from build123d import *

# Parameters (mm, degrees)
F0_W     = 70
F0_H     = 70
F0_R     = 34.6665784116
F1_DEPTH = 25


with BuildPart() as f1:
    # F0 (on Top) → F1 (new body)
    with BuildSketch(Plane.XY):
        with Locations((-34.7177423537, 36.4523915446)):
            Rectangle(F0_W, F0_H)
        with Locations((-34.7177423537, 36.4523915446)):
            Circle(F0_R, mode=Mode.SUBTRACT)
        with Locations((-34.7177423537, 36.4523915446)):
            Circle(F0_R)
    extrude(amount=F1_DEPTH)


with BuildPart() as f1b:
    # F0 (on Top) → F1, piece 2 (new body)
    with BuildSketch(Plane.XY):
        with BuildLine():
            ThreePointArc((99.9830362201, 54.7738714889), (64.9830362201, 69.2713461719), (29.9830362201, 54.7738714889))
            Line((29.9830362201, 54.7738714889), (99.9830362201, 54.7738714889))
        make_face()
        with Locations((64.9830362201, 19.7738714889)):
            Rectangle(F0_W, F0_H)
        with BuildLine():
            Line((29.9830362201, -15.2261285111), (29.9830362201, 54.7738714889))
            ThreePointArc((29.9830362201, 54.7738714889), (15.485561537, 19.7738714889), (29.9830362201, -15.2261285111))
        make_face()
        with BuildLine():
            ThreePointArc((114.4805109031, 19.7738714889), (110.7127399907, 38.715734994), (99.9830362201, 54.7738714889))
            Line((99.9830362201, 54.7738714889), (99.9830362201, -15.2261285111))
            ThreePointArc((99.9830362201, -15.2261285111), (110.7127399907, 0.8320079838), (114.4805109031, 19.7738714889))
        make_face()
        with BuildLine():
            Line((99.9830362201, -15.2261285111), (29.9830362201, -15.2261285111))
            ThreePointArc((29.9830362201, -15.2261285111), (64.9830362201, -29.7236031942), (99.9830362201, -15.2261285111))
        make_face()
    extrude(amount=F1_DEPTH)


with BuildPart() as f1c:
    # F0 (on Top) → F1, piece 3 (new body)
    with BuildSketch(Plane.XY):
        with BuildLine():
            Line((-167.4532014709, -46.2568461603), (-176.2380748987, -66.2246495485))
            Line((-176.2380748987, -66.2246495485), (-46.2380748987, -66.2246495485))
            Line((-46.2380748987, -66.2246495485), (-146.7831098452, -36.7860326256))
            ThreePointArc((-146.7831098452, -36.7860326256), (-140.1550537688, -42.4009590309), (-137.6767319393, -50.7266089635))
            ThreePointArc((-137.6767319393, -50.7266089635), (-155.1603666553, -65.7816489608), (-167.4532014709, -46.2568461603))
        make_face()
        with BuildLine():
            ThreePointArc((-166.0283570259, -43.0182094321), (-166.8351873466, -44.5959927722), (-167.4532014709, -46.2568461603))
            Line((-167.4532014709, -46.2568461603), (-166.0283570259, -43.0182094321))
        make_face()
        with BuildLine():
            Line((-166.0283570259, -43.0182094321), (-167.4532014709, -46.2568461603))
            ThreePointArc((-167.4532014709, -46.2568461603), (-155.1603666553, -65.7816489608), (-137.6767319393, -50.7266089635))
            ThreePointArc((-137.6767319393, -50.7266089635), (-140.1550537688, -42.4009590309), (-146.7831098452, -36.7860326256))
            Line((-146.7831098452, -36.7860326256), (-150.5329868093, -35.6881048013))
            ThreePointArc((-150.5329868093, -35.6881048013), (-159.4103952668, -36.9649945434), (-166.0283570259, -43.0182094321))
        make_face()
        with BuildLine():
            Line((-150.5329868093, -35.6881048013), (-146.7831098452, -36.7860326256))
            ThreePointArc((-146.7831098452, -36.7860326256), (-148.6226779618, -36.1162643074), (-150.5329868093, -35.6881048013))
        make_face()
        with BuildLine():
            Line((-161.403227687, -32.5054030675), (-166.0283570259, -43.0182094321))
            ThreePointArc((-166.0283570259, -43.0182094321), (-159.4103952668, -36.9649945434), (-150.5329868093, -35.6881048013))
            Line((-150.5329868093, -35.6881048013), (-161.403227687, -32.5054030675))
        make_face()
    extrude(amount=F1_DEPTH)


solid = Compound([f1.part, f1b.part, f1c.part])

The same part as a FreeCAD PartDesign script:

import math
import FreeCAD as App
import Part
import Sketcher

V = App.Vector


def add_polygon(sketch, points):
    """Adds a closed chain of lines whose ends are joined by coincident constraints."""
    first, n = sketch.GeometryCount, len(points)
    for a, b in zip(points, points[1:] + points[:1]):
        sketch.addGeometry(Part.LineSegment(App.Vector(*a, 0), App.Vector(*b, 0)), False)
    for i in range(n):
        sketch.addConstraint(Sketcher.Constraint("Coincident", first + i, 2, first + (i + 1) % n, 1))

doc = App.newDocument("Part")
body = doc.addObject("PartDesign::Body", "Body")

# Sketch on XY plane
sketch1 = doc.addObject("Sketcher::SketchObject", "Sketch")
body.addObject(sketch1)
sketch1.AttachmentSupport = (doc.XY_Plane, [""])
sketch1.MapMode = "FlatFace"
add_polygon(sketch1, [(-70, 71), (-70, 1), (0, 1), (0, 71)])  # lines 0-3
sketch1.addConstraint([
    Sketcher.Constraint("Vertical", 0),
    Sketcher.Constraint("Horizontal", 1),
    Sketcher.Constraint("Vertical", 2),
    Sketcher.Constraint("Horizontal", 3),
    Sketcher.Constraint("Equal", 3, 0),
    Sketcher.Constraint("DistanceX", 1, 1, 1, 2, 70.0),
    Sketcher.Constraint("DistanceY", -1, 1, 0, 2, 1.452392),
    Sketcher.Constraint("DistanceX", 0, 2, -1, 1, 69.717742),
])
pad1 = doc.addObject("PartDesign::Pad", "Pad")
body.addObject(pad1)
pad1.Profile = sketch1
pad1.Length = 25
body2 = doc.addObject("PartDesign::Body", "Body001")

# Sketch on XY plane
sketch2 = doc.addObject("Sketcher::SketchObject", "Sketch001")
body2.addObject(sketch2)
sketch2.AttachmentSupport = (doc.getObject("XY_Plane001"), [""])
sketch2.MapMode = "FlatFace"
sketch2.addGeometry([
    Part.ArcOfCircle(Part.Circle(V(65, 20, 0), V(0, 0, 1), 49), math.radians(45), math.radians(315)),
    Part.ArcOfCircle(Part.Circle(V(65, 20, 0), V(0, 0, 1), 49), math.radians(-45), math.radians(0)),
    Part.ArcOfCircle(Part.Circle(V(65, 20, 0), V(0, 0, 1), 49), math.radians(0), math.radians(45)),
], False)
sketch2.addConstraint([
    Sketcher.Constraint("Tangent", 0, 2, 1, 1),
    Sketcher.Constraint("Tangent", 1, 2, 2, 1),
    Sketcher.Constraint("Tangent", 2, 2, 0, 1),
    Sketcher.Constraint("Horizontal", 2, 3, 1, 2),
    Sketcher.Constraint("Vertical", 0, 2, 2, 2),
    Sketcher.Constraint("DistanceX", 0, 3, 0, 2, 35.0),
    Sketcher.Constraint("DistanceY", 0, 2, 0, 3, 35.0),
    Sketcher.Constraint("DistanceY", -1, 1, 0, 3, 19.773871),
    Sketcher.Constraint("DistanceX", -1, 1, 1, 2, 114.480511),
])
pad2 = doc.addObject("PartDesign::Pad", "Pad001")
body2.addObject(pad2)
pad2.Profile = sketch2
pad2.Length = 25
body3 = doc.addObject("PartDesign::Body", "Body002")

# Sketch on XY plane
sketch3 = doc.addObject("Sketcher::SketchObject", "Sketch002")
body3.addObject(sketch3)
sketch3.AttachmentSupport = (doc.getObject("XY_Plane002"), [""])
sketch3.MapMode = "FlatFace"
sketch3.addGeometry([
    Part.LineSegment(V(-167.5, -46.3, 0), V(-176.2, -66.2, 0)),  # 0
    Part.LineSegment(V(-176.2, -66.2, 0), V(-46.2, -66.2, 0)),  # 1
    Part.LineSegment(V(-46.2, -66.2, 0), V(-146.8, -36.8, 0)),  # 2
    Part.ArcOfCircle(Part.Circle(V(-152.9, -50.7, 0), V(0, 0, 1), 15.2), math.radians(66.31), math.radians(81.05)),  # 3
    Part.LineSegment(V(-150.5, -35.7, 0), V(-161.4, -32.5, 0)),  # 4
    Part.LineSegment(V(-161.4, -32.5, 0), V(-166, -43, 0)),  # 5
    Part.ArcOfCircle(Part.Circle(V(-152.9, -50.7, 0), V(0, 0, 1), 15.2), math.radians(149.58), math.radians(162.93)),  # 6
], False)
sketch3.addConstraint([
    Sketcher.Constraint("Coincident", 0, 2, 1, 1),
    Sketcher.Constraint("Coincident", 1, 2, 2, 1),
    Sketcher.Constraint("Coincident", 2, 2, 3, 1),
    Sketcher.Constraint("Coincident", 3, 2, 4, 1),
    Sketcher.Constraint("Coincident", 4, 2, 5, 1),
    Sketcher.Constraint("Coincident", 5, 2, 6, 1),
    Sketcher.Constraint("Coincident", 6, 2, 0, 1),
    Sketcher.Constraint("Horizontal", 1),
    Sketcher.Constraint("Coincident", 6, 3, 3, 3),
    Sketcher.Constraint("Equal", 3, 6),
    Sketcher.Constraint("Parallel", 2, 4),
    Sketcher.Constraint("Parallel", 0, 5),
    Sketcher.Constraint("DistanceX", 1, 1, 1, 2, 130.0),
    Sketcher.Constraint("Radius", 3, 15.223714),
    Sketcher.Constraint("DistanceX", 6, 2, -1, 1, 167.453201),
    Sketcher.Constraint("DistanceY", 3, 2, 4, 2, 3.182702),
    Sketcher.Constraint("DistanceY", 6, 3, 5, 2, 7.7084),
    Sketcher.Constraint("Distance", 0, 21.814838),
    Sketcher.Constraint("DistanceY", 3, 3, -1, 1, 50.726609),
    Sketcher.Constraint("DistanceY", 0, 2, -1, 1, 66.22465),
    Sketcher.Constraint("DistanceX", 2, 2, -1, 1, 146.78311),
    Sketcher.Constraint("DistanceX", 0, 2, 6, 3, 23.337629),
])
pad3 = doc.addObject("PartDesign::Pad", "Pad002")
body3.addObject(pad3)
pad3.Profile = sketch3
pad3.Length = 25

doc.recompute()
